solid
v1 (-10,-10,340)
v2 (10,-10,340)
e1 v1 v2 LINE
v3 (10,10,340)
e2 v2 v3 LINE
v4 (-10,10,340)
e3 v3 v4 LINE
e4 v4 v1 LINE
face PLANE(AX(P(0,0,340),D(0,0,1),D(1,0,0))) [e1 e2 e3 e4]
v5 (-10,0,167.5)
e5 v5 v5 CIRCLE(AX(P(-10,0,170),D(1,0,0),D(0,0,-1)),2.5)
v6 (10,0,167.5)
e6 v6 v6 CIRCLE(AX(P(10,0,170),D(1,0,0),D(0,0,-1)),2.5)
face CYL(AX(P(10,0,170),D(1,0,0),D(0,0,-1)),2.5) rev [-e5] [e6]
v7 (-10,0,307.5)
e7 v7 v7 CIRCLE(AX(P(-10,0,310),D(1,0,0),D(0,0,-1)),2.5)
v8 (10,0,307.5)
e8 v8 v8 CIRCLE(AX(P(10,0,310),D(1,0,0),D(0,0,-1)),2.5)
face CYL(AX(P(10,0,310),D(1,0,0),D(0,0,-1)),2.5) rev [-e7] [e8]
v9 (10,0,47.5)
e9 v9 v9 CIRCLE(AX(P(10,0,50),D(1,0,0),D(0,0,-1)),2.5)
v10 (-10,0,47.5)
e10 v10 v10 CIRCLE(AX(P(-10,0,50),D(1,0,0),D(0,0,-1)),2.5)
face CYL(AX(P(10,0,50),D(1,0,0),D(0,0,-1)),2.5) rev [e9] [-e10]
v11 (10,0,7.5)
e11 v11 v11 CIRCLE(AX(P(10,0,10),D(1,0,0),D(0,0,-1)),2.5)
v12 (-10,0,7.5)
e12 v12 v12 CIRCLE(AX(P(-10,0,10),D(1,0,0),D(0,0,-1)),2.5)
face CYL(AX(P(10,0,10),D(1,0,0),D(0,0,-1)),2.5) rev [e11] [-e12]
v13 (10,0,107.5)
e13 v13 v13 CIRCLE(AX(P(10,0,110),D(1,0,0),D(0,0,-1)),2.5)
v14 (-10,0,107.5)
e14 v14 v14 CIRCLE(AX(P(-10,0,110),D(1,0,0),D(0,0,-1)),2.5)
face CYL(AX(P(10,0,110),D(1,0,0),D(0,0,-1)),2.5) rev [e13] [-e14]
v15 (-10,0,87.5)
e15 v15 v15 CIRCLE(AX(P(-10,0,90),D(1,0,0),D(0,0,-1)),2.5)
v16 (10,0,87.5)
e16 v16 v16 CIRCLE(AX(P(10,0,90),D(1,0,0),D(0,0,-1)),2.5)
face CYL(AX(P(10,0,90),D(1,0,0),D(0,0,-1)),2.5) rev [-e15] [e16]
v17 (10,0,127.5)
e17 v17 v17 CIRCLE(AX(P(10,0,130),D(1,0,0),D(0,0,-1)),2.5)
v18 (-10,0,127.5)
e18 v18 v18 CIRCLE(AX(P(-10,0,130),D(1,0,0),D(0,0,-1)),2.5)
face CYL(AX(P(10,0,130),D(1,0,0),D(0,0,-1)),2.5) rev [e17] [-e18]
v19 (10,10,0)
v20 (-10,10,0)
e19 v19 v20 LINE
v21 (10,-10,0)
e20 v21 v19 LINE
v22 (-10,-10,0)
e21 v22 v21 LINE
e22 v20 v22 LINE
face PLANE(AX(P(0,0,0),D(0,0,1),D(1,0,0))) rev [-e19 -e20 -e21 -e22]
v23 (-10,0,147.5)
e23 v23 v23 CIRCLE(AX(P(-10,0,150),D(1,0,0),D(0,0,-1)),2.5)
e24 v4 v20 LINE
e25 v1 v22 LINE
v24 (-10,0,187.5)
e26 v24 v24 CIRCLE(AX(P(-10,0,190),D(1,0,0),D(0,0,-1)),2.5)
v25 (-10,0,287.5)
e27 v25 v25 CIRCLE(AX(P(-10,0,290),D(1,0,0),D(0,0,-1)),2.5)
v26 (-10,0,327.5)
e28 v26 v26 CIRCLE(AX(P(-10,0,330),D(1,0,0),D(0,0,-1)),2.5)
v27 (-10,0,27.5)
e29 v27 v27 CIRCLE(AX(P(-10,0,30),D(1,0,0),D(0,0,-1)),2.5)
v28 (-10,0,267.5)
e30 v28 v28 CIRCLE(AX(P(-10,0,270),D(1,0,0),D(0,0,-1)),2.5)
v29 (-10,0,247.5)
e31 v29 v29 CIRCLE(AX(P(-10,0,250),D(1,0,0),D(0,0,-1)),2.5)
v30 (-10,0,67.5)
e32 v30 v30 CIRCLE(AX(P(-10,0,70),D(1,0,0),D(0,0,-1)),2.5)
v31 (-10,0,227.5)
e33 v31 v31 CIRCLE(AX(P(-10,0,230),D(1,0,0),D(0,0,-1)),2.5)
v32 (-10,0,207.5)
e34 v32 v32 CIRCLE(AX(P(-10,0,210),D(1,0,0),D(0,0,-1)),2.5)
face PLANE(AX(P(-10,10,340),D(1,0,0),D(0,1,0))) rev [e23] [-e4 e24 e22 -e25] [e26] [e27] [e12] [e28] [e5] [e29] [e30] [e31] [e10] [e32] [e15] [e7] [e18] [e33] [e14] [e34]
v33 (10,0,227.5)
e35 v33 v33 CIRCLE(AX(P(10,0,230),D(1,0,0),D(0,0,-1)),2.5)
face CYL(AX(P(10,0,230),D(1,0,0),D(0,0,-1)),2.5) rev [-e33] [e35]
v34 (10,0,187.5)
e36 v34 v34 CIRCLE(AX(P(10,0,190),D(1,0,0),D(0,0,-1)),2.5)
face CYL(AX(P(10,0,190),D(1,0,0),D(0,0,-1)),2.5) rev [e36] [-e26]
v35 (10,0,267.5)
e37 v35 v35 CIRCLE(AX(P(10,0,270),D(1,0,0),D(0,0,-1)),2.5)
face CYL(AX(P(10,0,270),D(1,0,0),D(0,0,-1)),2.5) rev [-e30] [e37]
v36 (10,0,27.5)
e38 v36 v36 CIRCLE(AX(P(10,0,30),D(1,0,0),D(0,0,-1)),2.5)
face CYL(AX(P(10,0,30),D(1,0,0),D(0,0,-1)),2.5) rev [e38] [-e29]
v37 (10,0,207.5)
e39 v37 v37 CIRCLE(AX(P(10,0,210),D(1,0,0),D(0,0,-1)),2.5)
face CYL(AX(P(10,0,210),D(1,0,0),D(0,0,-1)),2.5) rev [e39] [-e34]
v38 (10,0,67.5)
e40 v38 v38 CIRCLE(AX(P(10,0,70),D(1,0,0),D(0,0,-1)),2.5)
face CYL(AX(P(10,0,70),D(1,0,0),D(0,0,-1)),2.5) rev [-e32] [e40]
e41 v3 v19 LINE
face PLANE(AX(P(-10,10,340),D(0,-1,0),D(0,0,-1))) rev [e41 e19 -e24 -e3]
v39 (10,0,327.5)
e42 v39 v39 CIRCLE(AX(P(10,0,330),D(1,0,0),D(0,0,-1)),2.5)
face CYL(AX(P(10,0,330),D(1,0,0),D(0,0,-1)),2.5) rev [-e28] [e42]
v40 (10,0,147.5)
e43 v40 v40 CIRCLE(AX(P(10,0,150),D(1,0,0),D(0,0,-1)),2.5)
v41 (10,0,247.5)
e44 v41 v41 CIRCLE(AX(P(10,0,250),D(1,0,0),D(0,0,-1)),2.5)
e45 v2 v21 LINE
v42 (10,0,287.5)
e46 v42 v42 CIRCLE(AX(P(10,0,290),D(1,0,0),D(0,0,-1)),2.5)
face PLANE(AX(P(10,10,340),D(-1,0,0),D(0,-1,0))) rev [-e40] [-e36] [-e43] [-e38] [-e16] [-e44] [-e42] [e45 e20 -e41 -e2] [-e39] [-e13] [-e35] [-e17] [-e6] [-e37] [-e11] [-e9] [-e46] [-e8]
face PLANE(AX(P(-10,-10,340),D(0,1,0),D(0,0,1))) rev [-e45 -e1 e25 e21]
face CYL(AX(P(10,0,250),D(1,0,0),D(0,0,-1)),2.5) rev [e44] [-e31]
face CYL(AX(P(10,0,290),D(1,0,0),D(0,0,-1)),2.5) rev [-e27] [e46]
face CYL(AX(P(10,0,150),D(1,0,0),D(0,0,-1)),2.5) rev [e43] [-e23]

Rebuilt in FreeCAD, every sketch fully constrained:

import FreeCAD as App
import Part
import Sketcher
from FreeCAD import Vector


def add_polygon(sketch, points):
    """Adds a closed chain of lines whose ends are joined by coincident constraints."""
    first, n = sketch.GeometryCount, len(points)
    for a, b in zip(points, points[1:] + points[:1]):
        sketch.addGeometry(Part.LineSegment(App.Vector(*a, 0), App.Vector(*b, 0)), False)
    for i in range(n):
        sketch.addConstraint(Sketcher.Constraint("Coincident", first + i, 2, first + (i + 1) % n, 1))

doc = App.newDocument("Part")
body = doc.addObject("PartDesign::Body", "Body")

sketch1 = body.newObject("Sketcher::SketchObject", "Sketch")
sketch1.AttachmentSupport = (doc.getObject("XY_Plane"), [""])
sketch1.MapMode = "FlatFace"
add_polygon(sketch1, [(-10, 10), (-10, -10), (10, -10), (10, 10)])
sketch1.addConstraint([
    Sketcher.Constraint("Vertical", 0),
    Sketcher.Constraint("Horizontal", 1),
    Sketcher.Constraint("Vertical", 2),
    Sketcher.Constraint("Horizontal", 3),
    Sketcher.Constraint("Symmetric", 0, 2, 2, 2, -1, 1),
    Sketcher.Constraint("Equal", 3, 0),
    Sketcher.Constraint("DistanceX", 1, 1, 1, 2, 20.0),
])
pad1 = body.newObject("PartDesign::Pad", "Pad")
pad1.Profile = sketch1
pad1.Length = 340

sketch2 = body.newObject("Sketcher::SketchObject", "Sketch001")
sketch2.AttachmentSupport = (doc.getObject("YZ_Plane"), [""])
sketch2.MapMode = "FlatFace"
sketch2.AttachmentOffset = App.Placement(Vector(0, 0, 10), App.Rotation())
sketch2.addGeometry(Part.Circle(Vector(0, 10, 0), Vector(0, 0, 1), 2.5), False)
sketch2.addConstraint([
    Sketcher.Constraint("PointOnObject", 0, 3, -2),
    Sketcher.Constraint("Diameter", 0, 5.0),
    Sketcher.Constraint("DistanceY", -1, 1, 0, 3, 10.0),
])
doc.recompute()
hole = body.newObject("PartDesign::Hole", "Hole")
hole.Profile = sketch2
hole.ThreadType = "None"
hole.Diameter = 5
hole.DepthType = "ThroughAll"
doc.recompute()

linearpattern = body.newObject("PartDesign::LinearPattern", "LinearPattern")
linearpattern.Originals = [hole]
linearpattern.Direction = (doc.getObject("Z_Axis"), [""])
linearpattern.Mode = "offset"
linearpattern.Offset = 20
linearpattern.Occurrences = 17
body.Tip = linearpattern

doc.recompute()
